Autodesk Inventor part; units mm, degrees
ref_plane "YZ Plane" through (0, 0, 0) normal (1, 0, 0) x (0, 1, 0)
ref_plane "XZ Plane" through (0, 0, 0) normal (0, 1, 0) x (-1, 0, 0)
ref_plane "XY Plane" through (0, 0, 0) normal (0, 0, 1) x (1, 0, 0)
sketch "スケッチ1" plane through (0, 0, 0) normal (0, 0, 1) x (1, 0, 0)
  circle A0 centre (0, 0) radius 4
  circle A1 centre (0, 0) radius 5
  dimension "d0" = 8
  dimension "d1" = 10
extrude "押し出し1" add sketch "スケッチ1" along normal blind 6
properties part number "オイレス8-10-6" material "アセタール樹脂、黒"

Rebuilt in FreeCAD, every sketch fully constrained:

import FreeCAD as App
import Part
import Sketcher
from FreeCAD import Vector

doc = App.newDocument("Part")
params = doc.addObject("Spreadsheet::Sheet", "Params")
for row, (alias, value) in enumerate([
    ("sketch1_diameter", "10 mm"),
    ("sketch1_diameter2", "8 mm"),
    ("pad1_length", "6 mm"),
], start=1):
    params.set(f"A{row}", alias)
    params.set(f"B{row}", "=" + value)
    params.setAlias(f"B{row}", alias)

body = doc.addObject("PartDesign::Body", "Body")

# Sketch on XY plane
sketch1 = body.newObject("Sketcher::SketchObject", "Sketch")
sketch1.AttachmentSupport = (doc.getObject("XY_Plane"), [""])
sketch1.MapMode = "FlatFace"
sketch1.addGeometry(Part.Circle(Vector(0, 0, 0), Vector(0, 0, 1), 5), False)
sketch1.addGeometry(Part.Circle(Vector(0, 0, 0), Vector(0, 0, 1), 4), False)
sketch1.addConstraint(Sketcher.Constraint("Coincident", 0, 3, -1, 1))
sketch1.addConstraint(Sketcher.Constraint("Coincident", 1, 3, -1, 1))
sketch1.addConstraint(Sketcher.Constraint("Diameter", 0, 10.0))
sketch1.addConstraint(Sketcher.Constraint("Diameter", 1, 8.0))
sketch1.setExpression("Constraints[2]", "Params.sketch1_diameter")
sketch1.setExpression("Constraints[3]", "Params.sketch1_diameter2")
pad1 = body.newObject("PartDesign::Pad", "Pad")
pad1.Profile = sketch1
pad1.setExpression("Length", "Params.pad1_length")

doc.recompute()
